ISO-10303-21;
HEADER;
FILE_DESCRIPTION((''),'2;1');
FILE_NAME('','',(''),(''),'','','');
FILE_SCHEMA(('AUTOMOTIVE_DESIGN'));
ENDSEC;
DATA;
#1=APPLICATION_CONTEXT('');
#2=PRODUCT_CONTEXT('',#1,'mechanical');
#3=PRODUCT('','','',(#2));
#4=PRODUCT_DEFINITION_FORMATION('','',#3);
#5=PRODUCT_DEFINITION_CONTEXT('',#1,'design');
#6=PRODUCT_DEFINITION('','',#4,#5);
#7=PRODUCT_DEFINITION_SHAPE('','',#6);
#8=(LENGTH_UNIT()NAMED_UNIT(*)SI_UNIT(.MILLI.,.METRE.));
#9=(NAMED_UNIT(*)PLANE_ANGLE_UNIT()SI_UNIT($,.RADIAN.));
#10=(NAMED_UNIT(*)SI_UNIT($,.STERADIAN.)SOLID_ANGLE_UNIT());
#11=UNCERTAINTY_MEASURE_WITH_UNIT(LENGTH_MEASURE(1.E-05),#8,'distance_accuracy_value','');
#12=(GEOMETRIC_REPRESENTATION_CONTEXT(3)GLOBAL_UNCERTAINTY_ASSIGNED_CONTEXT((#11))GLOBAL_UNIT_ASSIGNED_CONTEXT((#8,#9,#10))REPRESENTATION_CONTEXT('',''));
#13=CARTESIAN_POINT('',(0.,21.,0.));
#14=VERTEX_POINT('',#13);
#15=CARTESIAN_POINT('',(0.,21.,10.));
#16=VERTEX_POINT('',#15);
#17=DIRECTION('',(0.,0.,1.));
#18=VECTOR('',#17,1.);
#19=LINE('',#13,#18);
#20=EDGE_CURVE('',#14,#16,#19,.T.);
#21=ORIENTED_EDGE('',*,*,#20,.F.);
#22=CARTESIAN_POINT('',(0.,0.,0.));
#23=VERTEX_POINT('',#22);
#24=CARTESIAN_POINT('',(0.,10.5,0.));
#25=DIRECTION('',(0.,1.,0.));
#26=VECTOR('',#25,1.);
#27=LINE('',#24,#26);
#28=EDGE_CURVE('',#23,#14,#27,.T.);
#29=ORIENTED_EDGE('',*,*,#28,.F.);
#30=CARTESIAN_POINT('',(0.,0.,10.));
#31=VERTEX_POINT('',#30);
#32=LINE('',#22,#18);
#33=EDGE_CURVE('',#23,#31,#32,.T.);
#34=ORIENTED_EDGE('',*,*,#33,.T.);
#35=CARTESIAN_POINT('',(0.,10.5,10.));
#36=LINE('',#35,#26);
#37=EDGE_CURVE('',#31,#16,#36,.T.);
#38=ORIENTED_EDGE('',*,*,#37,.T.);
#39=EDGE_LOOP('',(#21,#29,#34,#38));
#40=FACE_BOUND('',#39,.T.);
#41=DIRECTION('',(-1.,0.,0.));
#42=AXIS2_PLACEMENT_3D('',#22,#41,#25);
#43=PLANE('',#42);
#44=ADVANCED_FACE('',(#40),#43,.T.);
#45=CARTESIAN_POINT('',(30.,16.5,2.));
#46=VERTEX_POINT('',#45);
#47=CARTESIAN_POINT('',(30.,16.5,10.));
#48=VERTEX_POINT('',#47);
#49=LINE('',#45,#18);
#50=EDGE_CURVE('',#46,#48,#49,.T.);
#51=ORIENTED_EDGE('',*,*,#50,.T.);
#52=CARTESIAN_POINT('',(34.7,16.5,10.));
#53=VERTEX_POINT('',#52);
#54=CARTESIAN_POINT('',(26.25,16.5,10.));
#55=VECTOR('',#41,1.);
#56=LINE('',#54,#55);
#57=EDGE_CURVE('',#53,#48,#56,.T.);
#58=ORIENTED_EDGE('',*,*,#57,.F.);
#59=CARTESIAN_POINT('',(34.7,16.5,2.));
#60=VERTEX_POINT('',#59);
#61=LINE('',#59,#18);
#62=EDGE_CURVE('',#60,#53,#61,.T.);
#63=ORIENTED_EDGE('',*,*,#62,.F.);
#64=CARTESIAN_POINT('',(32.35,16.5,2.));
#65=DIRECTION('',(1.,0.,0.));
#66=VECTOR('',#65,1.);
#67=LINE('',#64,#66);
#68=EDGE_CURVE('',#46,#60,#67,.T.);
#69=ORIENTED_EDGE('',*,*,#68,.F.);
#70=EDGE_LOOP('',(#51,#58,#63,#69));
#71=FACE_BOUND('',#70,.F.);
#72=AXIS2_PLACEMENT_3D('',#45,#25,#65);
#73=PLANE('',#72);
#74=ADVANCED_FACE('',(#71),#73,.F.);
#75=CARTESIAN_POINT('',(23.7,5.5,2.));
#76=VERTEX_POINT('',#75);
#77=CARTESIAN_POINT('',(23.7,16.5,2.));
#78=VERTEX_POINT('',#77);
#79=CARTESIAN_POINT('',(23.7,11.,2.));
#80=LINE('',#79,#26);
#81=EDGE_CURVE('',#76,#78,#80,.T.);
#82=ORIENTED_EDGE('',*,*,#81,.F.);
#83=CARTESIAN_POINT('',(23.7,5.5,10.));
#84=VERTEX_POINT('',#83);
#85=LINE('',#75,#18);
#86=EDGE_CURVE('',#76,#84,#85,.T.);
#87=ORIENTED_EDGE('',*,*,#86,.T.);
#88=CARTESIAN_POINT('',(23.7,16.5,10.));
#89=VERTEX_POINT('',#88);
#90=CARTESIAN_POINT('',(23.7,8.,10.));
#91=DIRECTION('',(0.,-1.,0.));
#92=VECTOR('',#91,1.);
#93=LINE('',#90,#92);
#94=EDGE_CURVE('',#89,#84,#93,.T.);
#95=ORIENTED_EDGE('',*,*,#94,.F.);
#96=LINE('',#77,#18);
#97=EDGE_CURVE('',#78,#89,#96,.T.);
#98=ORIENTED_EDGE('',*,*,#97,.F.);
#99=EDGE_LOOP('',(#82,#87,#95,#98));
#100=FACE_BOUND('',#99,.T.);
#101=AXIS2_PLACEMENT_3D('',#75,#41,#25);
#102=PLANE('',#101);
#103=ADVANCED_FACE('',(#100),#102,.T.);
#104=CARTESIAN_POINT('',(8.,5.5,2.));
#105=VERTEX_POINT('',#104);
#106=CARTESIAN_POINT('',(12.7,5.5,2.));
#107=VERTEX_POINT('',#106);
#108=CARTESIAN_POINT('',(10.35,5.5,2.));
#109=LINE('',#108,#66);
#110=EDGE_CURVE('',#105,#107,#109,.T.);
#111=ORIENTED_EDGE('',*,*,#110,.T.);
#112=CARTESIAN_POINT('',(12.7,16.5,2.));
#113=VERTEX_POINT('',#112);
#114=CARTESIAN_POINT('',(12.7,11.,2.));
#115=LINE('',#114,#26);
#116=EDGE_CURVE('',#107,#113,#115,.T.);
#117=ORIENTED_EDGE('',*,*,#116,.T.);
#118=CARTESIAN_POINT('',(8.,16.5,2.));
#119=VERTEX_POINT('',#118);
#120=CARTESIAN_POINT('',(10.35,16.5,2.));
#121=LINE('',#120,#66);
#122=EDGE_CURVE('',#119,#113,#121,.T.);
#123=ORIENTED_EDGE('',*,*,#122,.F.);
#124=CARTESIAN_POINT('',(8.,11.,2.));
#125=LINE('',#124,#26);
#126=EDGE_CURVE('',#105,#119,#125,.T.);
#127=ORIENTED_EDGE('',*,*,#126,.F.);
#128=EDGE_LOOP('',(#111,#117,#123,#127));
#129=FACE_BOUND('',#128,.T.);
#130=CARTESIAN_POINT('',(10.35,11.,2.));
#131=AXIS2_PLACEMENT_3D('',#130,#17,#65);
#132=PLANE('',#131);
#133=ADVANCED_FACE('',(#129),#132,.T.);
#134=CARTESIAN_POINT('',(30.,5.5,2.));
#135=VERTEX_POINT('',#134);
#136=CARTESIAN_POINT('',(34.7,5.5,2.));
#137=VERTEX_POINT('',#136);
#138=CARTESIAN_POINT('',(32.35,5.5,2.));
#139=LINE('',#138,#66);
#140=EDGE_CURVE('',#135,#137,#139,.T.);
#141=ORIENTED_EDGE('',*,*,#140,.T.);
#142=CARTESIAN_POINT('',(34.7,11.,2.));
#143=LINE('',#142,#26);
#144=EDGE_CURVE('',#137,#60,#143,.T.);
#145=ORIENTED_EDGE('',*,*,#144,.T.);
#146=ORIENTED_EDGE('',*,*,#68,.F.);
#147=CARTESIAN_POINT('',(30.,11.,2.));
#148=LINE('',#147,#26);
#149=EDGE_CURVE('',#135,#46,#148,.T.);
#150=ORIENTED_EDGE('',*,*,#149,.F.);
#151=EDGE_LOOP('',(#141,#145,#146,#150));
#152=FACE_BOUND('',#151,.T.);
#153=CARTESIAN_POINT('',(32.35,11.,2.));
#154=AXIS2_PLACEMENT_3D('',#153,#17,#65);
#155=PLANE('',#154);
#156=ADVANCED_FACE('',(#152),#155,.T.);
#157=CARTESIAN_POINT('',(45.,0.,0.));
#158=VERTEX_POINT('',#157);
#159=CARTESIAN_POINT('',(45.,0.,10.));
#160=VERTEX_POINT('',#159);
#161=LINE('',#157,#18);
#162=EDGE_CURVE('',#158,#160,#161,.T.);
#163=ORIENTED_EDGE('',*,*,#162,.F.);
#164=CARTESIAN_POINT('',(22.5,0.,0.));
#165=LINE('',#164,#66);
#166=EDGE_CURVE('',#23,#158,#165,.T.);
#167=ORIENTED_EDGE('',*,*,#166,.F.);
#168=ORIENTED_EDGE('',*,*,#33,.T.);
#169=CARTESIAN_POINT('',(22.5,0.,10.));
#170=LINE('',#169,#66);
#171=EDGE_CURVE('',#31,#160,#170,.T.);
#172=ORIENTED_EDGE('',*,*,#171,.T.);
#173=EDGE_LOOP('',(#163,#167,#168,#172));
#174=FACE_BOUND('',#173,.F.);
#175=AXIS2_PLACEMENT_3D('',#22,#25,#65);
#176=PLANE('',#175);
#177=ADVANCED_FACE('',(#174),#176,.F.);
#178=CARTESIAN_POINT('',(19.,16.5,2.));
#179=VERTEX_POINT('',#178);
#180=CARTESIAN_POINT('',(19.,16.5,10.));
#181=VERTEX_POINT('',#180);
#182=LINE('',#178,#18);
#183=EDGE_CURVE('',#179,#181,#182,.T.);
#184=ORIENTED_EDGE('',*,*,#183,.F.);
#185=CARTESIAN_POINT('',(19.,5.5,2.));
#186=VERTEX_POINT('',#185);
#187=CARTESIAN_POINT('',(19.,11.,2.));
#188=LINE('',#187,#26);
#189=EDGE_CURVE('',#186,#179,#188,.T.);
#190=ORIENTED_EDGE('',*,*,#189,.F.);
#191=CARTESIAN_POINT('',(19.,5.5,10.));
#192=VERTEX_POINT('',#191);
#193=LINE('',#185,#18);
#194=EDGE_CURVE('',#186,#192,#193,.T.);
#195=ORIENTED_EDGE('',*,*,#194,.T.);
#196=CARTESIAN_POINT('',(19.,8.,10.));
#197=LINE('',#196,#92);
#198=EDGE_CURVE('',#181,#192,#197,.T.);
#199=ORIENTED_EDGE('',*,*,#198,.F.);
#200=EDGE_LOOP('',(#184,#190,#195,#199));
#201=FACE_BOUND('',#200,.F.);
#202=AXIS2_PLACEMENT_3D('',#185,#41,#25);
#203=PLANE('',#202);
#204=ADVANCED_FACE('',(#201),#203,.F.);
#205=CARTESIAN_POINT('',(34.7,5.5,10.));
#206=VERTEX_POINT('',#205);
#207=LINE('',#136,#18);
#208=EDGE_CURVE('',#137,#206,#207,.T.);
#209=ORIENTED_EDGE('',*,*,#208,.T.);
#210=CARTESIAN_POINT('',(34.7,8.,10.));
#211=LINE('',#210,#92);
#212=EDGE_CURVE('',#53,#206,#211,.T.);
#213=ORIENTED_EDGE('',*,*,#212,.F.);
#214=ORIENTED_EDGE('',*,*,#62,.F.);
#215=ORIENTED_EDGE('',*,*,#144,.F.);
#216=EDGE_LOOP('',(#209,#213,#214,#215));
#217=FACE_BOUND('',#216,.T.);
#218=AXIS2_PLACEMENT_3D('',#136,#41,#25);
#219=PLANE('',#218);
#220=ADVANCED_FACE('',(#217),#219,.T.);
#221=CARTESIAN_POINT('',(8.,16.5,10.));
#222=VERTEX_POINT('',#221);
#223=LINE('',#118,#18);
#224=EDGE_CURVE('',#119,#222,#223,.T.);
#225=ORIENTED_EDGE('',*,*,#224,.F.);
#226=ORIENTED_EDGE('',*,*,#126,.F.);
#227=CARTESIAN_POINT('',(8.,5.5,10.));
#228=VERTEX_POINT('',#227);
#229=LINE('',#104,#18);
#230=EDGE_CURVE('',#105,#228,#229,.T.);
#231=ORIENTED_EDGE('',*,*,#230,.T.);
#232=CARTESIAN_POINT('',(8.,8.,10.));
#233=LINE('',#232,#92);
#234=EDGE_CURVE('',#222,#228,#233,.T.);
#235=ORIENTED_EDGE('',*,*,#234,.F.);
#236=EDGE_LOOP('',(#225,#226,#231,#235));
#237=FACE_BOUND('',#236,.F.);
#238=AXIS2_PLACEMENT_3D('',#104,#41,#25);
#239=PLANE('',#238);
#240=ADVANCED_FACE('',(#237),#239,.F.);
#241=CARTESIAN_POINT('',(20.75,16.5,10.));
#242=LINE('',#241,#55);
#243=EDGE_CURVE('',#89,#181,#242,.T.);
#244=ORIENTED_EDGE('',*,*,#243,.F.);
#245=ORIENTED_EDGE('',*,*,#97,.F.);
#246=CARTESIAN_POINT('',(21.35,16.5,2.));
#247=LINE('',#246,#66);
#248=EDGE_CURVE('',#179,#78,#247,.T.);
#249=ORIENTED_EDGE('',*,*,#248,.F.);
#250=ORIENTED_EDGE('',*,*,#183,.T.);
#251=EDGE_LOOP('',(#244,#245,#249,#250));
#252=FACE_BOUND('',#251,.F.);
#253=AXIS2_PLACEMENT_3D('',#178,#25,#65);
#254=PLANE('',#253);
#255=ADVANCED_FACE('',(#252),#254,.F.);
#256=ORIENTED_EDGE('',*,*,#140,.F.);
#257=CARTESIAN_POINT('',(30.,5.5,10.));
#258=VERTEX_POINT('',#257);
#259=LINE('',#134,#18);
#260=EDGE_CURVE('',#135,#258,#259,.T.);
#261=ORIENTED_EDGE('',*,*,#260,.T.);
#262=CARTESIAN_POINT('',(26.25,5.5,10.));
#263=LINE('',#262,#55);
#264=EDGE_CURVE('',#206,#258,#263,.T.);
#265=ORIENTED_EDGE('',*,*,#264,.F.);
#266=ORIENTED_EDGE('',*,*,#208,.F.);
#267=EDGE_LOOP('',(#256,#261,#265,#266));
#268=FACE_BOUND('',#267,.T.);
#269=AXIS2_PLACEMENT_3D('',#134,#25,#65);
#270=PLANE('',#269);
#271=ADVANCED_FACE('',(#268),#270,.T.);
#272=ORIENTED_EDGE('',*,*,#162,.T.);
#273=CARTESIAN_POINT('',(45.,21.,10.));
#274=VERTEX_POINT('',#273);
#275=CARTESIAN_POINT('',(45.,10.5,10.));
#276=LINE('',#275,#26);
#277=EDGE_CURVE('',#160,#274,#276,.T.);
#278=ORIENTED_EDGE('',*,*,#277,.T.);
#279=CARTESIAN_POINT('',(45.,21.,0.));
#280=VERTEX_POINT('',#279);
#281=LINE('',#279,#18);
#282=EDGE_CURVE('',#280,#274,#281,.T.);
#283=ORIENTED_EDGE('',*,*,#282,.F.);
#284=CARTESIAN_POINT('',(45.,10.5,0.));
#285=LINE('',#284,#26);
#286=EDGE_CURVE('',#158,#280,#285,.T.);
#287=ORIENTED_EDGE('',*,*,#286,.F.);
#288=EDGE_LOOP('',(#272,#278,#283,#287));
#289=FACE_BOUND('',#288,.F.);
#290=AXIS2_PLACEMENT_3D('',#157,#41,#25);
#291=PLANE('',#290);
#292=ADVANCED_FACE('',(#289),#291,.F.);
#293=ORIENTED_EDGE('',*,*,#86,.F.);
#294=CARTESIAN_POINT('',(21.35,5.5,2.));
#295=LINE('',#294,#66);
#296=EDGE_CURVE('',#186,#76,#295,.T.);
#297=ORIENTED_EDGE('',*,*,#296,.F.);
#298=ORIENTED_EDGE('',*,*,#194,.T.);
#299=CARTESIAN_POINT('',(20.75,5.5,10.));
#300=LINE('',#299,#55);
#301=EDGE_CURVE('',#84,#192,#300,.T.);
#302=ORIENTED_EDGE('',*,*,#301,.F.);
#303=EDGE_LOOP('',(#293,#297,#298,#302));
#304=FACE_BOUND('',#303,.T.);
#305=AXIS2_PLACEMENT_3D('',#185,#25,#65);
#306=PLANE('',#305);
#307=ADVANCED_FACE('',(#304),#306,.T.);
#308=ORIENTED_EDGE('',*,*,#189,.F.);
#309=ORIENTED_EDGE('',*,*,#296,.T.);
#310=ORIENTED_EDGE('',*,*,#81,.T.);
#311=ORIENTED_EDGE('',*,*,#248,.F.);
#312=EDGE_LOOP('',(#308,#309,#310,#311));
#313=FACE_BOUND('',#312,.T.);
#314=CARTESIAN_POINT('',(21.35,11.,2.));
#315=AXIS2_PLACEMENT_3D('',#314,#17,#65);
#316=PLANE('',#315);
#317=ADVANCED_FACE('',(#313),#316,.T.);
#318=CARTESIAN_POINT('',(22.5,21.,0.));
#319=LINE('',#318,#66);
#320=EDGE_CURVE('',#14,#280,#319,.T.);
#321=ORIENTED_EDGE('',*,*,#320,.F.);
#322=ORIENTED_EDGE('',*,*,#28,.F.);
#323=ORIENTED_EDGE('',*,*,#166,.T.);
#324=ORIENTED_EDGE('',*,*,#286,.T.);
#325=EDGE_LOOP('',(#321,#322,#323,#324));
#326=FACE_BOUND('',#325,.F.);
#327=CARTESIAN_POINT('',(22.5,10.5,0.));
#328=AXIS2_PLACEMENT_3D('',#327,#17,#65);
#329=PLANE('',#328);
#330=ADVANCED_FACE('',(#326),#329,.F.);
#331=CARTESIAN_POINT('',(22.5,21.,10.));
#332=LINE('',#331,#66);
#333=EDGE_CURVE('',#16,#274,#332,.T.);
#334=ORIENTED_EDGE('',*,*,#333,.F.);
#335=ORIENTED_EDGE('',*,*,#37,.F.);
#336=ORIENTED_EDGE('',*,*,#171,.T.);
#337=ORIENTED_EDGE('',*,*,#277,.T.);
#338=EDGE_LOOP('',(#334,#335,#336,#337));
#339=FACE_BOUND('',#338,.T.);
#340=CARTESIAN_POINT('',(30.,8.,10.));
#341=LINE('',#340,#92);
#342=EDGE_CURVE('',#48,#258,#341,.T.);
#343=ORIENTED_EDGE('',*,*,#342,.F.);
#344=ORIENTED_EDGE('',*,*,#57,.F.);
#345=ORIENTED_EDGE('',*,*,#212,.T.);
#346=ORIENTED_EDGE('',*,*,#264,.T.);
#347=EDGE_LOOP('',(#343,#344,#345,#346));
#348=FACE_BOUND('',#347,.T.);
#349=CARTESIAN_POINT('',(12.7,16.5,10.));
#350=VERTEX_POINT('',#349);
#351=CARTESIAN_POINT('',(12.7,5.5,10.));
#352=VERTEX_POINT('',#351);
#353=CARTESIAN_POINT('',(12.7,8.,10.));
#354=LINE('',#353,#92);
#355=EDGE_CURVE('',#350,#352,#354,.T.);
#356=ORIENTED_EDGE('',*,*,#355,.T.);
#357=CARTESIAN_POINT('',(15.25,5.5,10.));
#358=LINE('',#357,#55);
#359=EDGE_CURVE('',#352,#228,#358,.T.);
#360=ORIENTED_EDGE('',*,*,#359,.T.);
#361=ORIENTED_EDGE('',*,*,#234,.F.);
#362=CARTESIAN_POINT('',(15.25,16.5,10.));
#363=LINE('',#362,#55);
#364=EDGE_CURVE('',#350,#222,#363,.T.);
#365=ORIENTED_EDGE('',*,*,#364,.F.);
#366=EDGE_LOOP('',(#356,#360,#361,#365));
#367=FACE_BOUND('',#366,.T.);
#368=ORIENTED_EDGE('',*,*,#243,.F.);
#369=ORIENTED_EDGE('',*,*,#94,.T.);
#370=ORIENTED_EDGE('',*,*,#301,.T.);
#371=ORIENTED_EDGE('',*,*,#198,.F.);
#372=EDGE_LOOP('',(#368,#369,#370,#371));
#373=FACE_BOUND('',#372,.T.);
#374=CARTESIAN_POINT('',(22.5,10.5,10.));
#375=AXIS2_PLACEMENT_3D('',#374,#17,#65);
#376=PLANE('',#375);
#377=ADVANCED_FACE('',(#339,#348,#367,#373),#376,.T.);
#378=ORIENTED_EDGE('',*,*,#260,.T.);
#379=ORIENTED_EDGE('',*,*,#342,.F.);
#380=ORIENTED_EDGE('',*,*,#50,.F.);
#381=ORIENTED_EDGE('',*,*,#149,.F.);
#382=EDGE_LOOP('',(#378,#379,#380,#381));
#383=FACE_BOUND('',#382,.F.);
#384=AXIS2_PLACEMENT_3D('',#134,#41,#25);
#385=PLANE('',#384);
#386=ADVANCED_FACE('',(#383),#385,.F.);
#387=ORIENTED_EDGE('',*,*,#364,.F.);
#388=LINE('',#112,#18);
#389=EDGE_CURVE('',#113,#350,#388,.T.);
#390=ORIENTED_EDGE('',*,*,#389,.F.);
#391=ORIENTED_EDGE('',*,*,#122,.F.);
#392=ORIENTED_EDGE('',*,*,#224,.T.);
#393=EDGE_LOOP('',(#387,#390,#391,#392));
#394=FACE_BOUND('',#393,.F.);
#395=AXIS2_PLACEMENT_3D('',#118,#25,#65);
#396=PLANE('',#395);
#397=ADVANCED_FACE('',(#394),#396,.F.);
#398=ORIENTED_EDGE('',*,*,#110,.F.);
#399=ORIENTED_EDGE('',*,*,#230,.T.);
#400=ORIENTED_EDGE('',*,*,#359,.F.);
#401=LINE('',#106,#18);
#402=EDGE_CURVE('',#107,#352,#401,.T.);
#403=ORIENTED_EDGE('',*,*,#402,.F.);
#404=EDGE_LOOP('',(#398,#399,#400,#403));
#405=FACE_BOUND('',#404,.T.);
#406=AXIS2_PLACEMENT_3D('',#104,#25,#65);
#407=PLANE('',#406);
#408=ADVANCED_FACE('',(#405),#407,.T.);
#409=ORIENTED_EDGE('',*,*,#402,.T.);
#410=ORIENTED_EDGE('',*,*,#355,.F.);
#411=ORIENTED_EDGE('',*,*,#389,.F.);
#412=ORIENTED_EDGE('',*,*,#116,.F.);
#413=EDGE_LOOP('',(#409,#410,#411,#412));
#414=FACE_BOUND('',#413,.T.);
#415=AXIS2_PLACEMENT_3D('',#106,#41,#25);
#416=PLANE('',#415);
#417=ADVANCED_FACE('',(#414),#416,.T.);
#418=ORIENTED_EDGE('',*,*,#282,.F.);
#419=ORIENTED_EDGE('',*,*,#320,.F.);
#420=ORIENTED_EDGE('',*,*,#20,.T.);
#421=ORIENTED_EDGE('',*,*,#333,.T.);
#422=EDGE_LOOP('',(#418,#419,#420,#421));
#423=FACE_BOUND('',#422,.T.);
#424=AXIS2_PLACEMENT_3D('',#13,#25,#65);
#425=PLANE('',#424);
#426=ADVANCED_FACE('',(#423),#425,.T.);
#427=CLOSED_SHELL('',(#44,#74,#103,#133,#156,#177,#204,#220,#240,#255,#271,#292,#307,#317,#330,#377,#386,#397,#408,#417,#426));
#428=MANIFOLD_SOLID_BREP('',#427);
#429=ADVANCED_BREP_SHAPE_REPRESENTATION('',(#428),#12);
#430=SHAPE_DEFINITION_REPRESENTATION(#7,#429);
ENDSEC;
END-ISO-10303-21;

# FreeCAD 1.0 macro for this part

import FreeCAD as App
import Part
import Sketcher
Q = App.Units.Quantity


def add_polygon(sketch, points):
    """Adds a closed chain of lines whose ends are joined by coincident constraints."""
    first, n = sketch.GeometryCount, len(points)
    for a, b in zip(points, points[1:] + points[:1]):
        sketch.addGeometry(Part.LineSegment(App.Vector(*a, 0), App.Vector(*b, 0)), False)
    for i in range(n):
        sketch.addConstraint(Sketcher.Constraint("Coincident", first + i, 2, first + (i + 1) % n, 1))

doc = App.newDocument("Part")
body = doc.addObject("PartDesign::Body", "Body")

sketch1 = body.newObject("Sketcher::SketchObject", "Sketch")
sketch1.AttachmentSupport = (doc.getObject("XY_Plane"), [""])
sketch1.MapMode = "FlatFace"
sketch1.AttachmentOffset = App.Placement(App.Vector(0, 0, 2), App.Rotation())
add_polygon(sketch1, [(19, 16.5), (19, 5.5), (23.7, 5.5), (23.7, 16.5)])
sketch1.addConstraint([
    Sketcher.Constraint("Vertical", 0),
    Sketcher.Constraint("Horizontal", 1),
    Sketcher.Constraint("Vertical", 2),
    Sketcher.Constraint("Horizontal", 3),
    Sketcher.Constraint("DistanceY", 0, 2, 0, 1, Q("11 mm")),
    Sketcher.Constraint("DistanceX", 1, 1, 1, 2, Q("4.7 mm")),
    Sketcher.Constraint("DistanceX", -1, 1, 0, 2, Q("19 mm")),
    Sketcher.Constraint("DistanceY", -1, 1, 0, 2, Q("5.5 mm")),
])
pad1 = body.newObject("PartDesign::Pad", "Pad")
pad1.Profile = sketch1
pad1.Length = 8.5
body2 = doc.addObject("PartDesign::Body", "Body001")

sketch2 = body2.newObject("Sketcher::SketchObject", "Sketch001")
sketch2.AttachmentSupport = (doc.getObject("XY_Plane001"), [""])
sketch2.MapMode = "FlatFace"
sketch2.AttachmentOffset = App.Placement(App.Vector(0, 0, 2), App.Rotation())
add_polygon(sketch2, [(30, 16.5), (30, 5.5), (34.7, 5.5), (34.7, 16.5)])
sketch2.addConstraint([
    Sketcher.Constraint("Vertical", 0),
    Sketcher.Constraint("Horizontal", 1),
    Sketcher.Constraint("Vertical", 2),
    Sketcher.Constraint("Horizontal", 3),
    Sketcher.Constraint("DistanceY", 0, 2, 0, 1, Q("11 mm")),
    Sketcher.Constraint("DistanceX", 1, 1, 1, 2, Q("4.7 mm")),
    Sketcher.Constraint("DistanceX", -1, 1, 0, 2, Q("30 mm")),
    Sketcher.Constraint("DistanceY", -1, 1, 0, 2, Q("5.5 mm")),
])
pad2 = body2.newObject("PartDesign::Pad", "Pad001")
pad2.Profile = sketch2
pad2.Length = 8.5
body3 = doc.addObject("PartDesign::Body", "Body002")

sketch3 = body3.newObject("Sketcher::SketchObject", "Sketch002")
sketch3.AttachmentSupport = (doc.getObject("XY_Plane002"), [""])
sketch3.MapMode = "FlatFace"
sketch3.AttachmentOffset = App.Placement(App.Vector(0, 0, 2), App.Rotation())
add_polygon(sketch3, [(8, 16.5), (8, 5.5), (12.7, 5.5), (12.7, 16.5)])
sketch3.addConstraint([
    Sketcher.Constraint("Vertical", 0),
    Sketcher.Constraint("Horizontal", 1),
    Sketcher.Constraint("Vertical", 2),
    Sketcher.Constraint("Horizontal", 3),
    Sketcher.Constraint("DistanceY", 0, 2, 0, 1, Q("11 mm")),
    Sketcher.Constraint("DistanceX", 1, 1, 1, 2, Q("4.7 mm")),
    Sketcher.Constraint("DistanceX", -1, 1, 0, 2, Q("8 mm")),
    Sketcher.Constraint("DistanceY", -1, 1, 0, 2, Q("5.5 mm")),
])
pad3 = body3.newObject("PartDesign::Pad", "Pad002")
pad3.Profile = sketch3
pad3.Length = 8.5
body4 = doc.addObject("PartDesign::Body", "Body003")

sketch4 = body4.newObject("Sketcher::SketchObject", "Sketch003")
sketch4.AttachmentSupport = (doc.getObject("XY_Plane003"), [""])
sketch4.MapMode = "FlatFace"
add_polygon(sketch4, [(0, 21), (0, 0), (45, 0), (45, 21)])
sketch4.addConstraint([
    Sketcher.Constraint("Vertical", 0),
    Sketcher.Constraint("Horizontal", 1),
    Sketcher.Constraint("Vertical", 2),
    Sketcher.Constraint("Horizontal", 3),
    Sketcher.Constraint("Coincident", 0, 2, -1, 1),
    Sketcher.Constraint("DistanceX", 1, 1, 1, 2, Q("45 mm")),
    Sketcher.Constraint("DistanceY", 0, 2, 0, 1, Q("21 mm")),
])
pad4 = body4.newObject("PartDesign::Pad", "Pad003")
pad4.Profile = sketch4
pad4.Length = 10
doc.recompute()

boolean = body4.newObject("PartDesign::Boolean", "Boolean")
boolean.Type = "Cut"
boolean.addObjects([body3])
doc.recompute()

boolean2 = body4.newObject("PartDesign::Boolean", "Boolean001")
boolean2.Type = "Cut"
boolean2.addObjects([body2])
doc.recompute()

boolean3 = body4.newObject("PartDesign::Boolean", "Boolean002")
boolean3.Type = "Cut"
boolean3.addObjects([body])

doc.recompute()
